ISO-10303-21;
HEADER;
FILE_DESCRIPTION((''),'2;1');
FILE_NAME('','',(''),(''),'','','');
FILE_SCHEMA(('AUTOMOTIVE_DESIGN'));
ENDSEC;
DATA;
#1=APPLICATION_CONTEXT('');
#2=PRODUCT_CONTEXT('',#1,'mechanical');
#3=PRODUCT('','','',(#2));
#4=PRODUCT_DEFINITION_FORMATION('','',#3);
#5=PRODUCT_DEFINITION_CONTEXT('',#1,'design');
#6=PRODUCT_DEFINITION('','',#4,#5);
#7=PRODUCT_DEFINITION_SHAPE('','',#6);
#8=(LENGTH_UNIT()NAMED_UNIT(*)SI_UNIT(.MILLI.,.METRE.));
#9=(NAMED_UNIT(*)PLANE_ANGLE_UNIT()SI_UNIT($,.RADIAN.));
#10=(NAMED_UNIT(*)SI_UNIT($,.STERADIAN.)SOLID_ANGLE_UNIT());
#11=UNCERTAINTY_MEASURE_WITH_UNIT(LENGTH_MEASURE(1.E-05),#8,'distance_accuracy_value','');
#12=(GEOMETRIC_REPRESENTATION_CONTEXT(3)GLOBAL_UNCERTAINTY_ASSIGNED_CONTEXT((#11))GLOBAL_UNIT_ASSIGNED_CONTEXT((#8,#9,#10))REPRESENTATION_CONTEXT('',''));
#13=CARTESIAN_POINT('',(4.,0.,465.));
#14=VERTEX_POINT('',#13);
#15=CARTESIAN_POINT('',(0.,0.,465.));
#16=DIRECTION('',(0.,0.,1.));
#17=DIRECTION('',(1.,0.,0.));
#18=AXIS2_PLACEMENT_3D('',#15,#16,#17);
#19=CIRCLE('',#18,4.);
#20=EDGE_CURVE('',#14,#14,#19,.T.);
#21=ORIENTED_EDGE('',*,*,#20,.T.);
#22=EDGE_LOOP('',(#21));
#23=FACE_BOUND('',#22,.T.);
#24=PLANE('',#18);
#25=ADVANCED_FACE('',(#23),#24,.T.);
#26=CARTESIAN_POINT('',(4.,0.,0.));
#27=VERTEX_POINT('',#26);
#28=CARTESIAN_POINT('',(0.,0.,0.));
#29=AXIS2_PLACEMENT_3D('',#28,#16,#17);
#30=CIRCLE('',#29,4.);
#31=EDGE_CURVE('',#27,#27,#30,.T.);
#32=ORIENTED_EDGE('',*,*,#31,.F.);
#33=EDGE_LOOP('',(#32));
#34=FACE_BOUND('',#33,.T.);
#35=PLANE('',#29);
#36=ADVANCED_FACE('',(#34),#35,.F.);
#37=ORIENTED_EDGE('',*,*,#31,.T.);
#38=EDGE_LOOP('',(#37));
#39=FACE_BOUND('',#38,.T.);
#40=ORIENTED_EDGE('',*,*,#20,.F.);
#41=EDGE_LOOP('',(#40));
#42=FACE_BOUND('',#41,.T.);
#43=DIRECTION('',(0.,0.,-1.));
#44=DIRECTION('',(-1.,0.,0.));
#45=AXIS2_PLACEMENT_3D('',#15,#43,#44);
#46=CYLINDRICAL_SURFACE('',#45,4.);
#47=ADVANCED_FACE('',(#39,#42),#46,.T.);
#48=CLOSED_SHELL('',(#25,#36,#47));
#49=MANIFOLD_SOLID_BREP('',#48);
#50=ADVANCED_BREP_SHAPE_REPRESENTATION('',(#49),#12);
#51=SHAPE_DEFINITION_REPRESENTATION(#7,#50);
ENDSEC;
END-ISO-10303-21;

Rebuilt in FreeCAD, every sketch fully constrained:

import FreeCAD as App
import Part
import Sketcher
Q = App.Units.Quantity

doc = App.newDocument("Part")
body = doc.addObject("PartDesign::Body", "Body")

# Sketch on XY plane
sketch1 = body.newObject("Sketcher::SketchObject", "Sketch")
sketch1.AttachmentSupport = (doc.getObject("XY_Plane"), [""])
sketch1.MapMode = "FlatFace"
sketch1.addGeometry(Part.Circle(App.Vector(0, 0, 0), App.Vector(0, 0, 1), 4), False)
sketch1.addConstraint([
    Sketcher.Constraint("Coincident", 0, 3, -1, 1),
    Sketcher.Constraint("Diameter", 0, Q("8 mm")),
])
pad1 = body.newObject("PartDesign::Pad", "Pad")
pad1.Profile = sketch1
pad1.Length = 465

doc.recompute()
